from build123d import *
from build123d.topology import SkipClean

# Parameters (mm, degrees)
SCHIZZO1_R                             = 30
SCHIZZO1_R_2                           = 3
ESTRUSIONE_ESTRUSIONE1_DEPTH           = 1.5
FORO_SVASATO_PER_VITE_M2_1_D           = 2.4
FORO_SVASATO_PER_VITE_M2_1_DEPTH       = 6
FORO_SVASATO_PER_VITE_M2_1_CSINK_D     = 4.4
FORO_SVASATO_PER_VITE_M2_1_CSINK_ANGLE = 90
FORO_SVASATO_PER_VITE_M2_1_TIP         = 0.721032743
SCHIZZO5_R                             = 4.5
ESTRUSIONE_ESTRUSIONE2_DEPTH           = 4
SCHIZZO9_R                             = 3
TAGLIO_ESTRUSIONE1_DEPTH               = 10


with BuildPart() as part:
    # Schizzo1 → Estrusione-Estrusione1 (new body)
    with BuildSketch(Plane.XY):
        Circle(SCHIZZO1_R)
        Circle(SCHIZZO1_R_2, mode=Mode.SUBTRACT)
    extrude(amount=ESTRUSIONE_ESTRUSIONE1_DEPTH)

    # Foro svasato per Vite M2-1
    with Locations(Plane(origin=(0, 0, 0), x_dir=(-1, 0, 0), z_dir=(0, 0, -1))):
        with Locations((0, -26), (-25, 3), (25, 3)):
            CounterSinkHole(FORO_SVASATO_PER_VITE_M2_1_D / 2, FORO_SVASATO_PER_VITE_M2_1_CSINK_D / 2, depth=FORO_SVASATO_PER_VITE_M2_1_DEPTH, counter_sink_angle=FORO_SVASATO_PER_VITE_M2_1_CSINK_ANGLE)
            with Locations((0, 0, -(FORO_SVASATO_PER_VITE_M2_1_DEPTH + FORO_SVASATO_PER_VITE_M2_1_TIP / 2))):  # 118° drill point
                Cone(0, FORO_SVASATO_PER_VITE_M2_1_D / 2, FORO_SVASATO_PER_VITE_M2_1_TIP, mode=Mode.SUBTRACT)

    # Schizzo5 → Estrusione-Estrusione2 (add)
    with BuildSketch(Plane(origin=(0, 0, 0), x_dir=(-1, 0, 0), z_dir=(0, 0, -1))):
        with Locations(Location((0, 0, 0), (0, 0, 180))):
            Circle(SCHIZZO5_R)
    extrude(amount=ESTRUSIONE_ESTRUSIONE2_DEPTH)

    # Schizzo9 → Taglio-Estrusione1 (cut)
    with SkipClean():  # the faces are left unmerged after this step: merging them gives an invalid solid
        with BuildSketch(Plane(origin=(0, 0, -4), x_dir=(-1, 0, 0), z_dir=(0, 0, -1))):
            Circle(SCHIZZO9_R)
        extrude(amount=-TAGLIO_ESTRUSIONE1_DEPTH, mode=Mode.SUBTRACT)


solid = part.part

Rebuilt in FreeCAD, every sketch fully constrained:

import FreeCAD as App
import Part
import Sketcher

V = App.Vector
Q = App.Units.Quantity

doc = App.newDocument("Part")
params = doc.addObject("Spreadsheet::Sheet", "Params")
for row, (alias, value) in enumerate([
    ("sketch1_diameter", "60 mm"),
    ("sketch1_diameter2", "6 mm"),
    ("pad1_length", "1.5 mm"),
    ("sketch2_diameter", "2.4 mm"),
    ("hole_diameter", "2.4 mm"),
    ("hole_depth", "6 mm"),
    ("hole_csink_diameter", "4.4 mm"),
    ("sketch3_diameter", "9 mm"),
    ("pad2_length", "4 mm"),
    ("sketch4_diameter", "6 mm"),
    ("pocket1_length", "10 mm"),
], start=1):
    params.set(f"A{row}", alias)
    params.set(f"B{row}", "=" + value)
    params.setAlias(f"B{row}", alias)

body = doc.addObject("PartDesign::Body", "Body")

# Sketch on XY plane
sketch1 = doc.addObject("Sketcher::SketchObject", "Sketch")
body.addObject(sketch1)
sketch1.AttachmentSupport = (doc.XY_Plane, [""])
sketch1.MapMode = "FlatFace"
sketch1.addGeometry(Part.Circle(V(0, 0, 0), V(0, 0, 1), 30), False)
sketch1.addGeometry(Part.Circle(V(0, 0, 0), V(0, 0, 1), 3), False)
sketch1.addConstraint(Sketcher.Constraint("Coincident", 0, 3, -1, 1))
sketch1.addConstraint(Sketcher.Constraint("Coincident", 1, 3, -1, 1))
sketch1.addConstraint(Sketcher.Constraint("Diameter", 0, Q("60 mm")))
sketch1.addConstraint(Sketcher.Constraint("Diameter", 1, Q("6 mm")))
sketch1.setExpression("Constraints[2]", "Params.sketch1_diameter")
sketch1.setExpression("Constraints[3]", "Params.sketch1_diameter2")
pad1 = doc.addObject("PartDesign::Pad", "Pad")
body.addObject(pad1)
pad1.Profile = sketch1
pad1.setExpression("Length", "Params.pad1_length")

# Sketch on XY plane
sketch2 = doc.addObject("Sketcher::SketchObject", "Sketch001")
body.addObject(sketch2)
sketch2.AttachmentSupport = (doc.XY_Plane, [""])
sketch2.MapMode = "FlatFace"
sketch2.addGeometry(Part.Circle(V(0, -26, 0), V(0, 0, 1), 1.2), False)
sketch2.addGeometry(Part.Circle(V(25, 3, 0), V(0, 0, 1), 1.2), False)
sketch2.addGeometry(Part.Circle(V(-25, 3, 0), V(0, 0, 1), 1.2), False)
sketch2.addConstraint(Sketcher.Constraint("Equal", 0, 1))
sketch2.addConstraint(Sketcher.Constraint("Equal", 1, 2))
sketch2.addConstraint(Sketcher.Constraint("Symmetric", 1, 3, 2, 3, -2))
sketch2.addConstraint(Sketcher.Constraint("PointOnObject", 0, 3, -2))
sketch2.addConstraint(Sketcher.Constraint("Diameter", 0, Q("2.4 mm")))
sketch2.addConstraint(Sketcher.Constraint("DistanceY", 0, 3, -1, 1, Q("26 mm")))
sketch2.addConstraint(Sketcher.Constraint("DistanceX", -1, 1, 1, 3, Q("25 mm")))
sketch2.addConstraint(Sketcher.Constraint("DistanceY", -1, 1, 1, 3, Q("3 mm")))
sketch2.setExpression("Constraints[4]", "Params.sketch2_diameter")
doc.recompute()
hole = doc.addObject("PartDesign::Hole", "Hole")
body.addObject(hole)
hole.Profile = sketch2
hole.ThreadType = "None"
hole.setExpression("Diameter", "Params.hole_diameter")
hole.DepthType = "Dimension"
hole.setExpression("Depth", "Params.hole_depth")
hole.DrillPoint = "Angled"
hole.DrillPointAngle = 118
hole.HoleCutType = "Countersink"
hole.setExpression("HoleCutDiameter", "Params.hole_csink_diameter")
hole.HoleCutCountersinkAngle = 90
hole.Reversed = True

# Sketch on XY plane
sketch3 = doc.addObject("Sketcher::SketchObject", "Sketch002")
body.addObject(sketch3)
sketch3.AttachmentSupport = (doc.XY_Plane, [""])
sketch3.MapMode = "FlatFace"
sketch3.addGeometry(Part.Circle(V(0, 0, 0), V(0, 0, 1), 4.5), False)
sketch3.addConstraint(Sketcher.Constraint("Coincident", 0, 3, -1, 1))
sketch3.addConstraint(Sketcher.Constraint("Diameter", 0, Q("9 mm")))
sketch3.setExpression("Constraints[1]", "Params.sketch3_diameter")
pad2 = doc.addObject("PartDesign::Pad", "Pad001")
body.addObject(pad2)
pad2.Profile = sketch3
pad2.setExpression("Length", "Params.pad2_length")
pad2.Reversed = True

# Sketch on XY plane
sketch4 = doc.addObject("Sketcher::SketchObject", "Sketch003")
body.addObject(sketch4)
sketch4.AttachmentSupport = (doc.XY_Plane, [""])
sketch4.MapMode = "FlatFace"
sketch4.AttachmentOffset = App.Placement(V(0, 0, -4), App.Rotation())
sketch4.addGeometry(Part.Circle(V(0, 0, 0), V(0, 0, 1), 3), False)
sketch4.addConstraint(Sketcher.Constraint("Coincident", 0, 3, -1, 1))
sketch4.addConstraint(Sketcher.Constraint("Diameter", 0, Q("6 mm")))
sketch4.setExpression("Constraints[1]", "Params.sketch4_diameter")
pocket1 = doc.addObject("PartDesign::Pocket", "Pocket")
body.addObject(pocket1)
pocket1.Profile = sketch4
pocket1.setExpression("Length", "Params.pocket1_length")
pocket1.Reversed = True

doc.recompute()
